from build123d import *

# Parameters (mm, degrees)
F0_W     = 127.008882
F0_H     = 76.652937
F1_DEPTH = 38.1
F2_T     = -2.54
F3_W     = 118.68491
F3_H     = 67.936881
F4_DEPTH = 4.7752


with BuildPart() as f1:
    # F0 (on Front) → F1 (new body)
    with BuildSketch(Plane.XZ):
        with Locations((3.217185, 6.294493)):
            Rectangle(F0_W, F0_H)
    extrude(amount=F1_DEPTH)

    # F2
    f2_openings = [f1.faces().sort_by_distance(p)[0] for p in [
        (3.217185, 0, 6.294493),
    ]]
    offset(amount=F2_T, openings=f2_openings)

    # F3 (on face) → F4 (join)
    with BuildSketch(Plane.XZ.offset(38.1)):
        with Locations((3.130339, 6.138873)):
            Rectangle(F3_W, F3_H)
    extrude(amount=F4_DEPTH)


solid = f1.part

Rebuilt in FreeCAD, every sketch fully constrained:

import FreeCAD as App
import Part
import Sketcher
Q = App.Units.Quantity


def faces_at(feature, points):
    """Names of the faces that lie closest to the given points."""
    faces = feature.Shape.Faces
    near = lambda p: min(range(len(faces)), key=lambda i: faces[i].distToShape(Part.Vertex(*p))[0])
    return sorted({f"Face{near(p) + 1}" for p in points})


def add_polygon(sketch, points):
    """Adds a closed chain of lines whose ends are joined by coincident constraints."""
    first, n = sketch.GeometryCount, len(points)
    for a, b in zip(points, points[1:] + points[:1]):
        sketch.addGeometry(Part.LineSegment(App.Vector(*a, 0), App.Vector(*b, 0)), False)
    for i in range(n):
        sketch.addConstraint(Sketcher.Constraint("Coincident", first + i, 2, first + (i + 1) % n, 1))

doc = App.newDocument("Part")
body = doc.addObject("PartDesign::Body", "Body")

sketch1 = doc.addObject("Sketcher::SketchObject", "Sketch")
body.addObject(sketch1)
sketch1.AttachmentSupport = (doc.XZ_Plane, [""])
sketch1.MapMode = "FlatFace"
add_polygon(sketch1, [(-60, 45), (-60, -32), (67, -32), (67, 45)])
sketch1.addConstraint(Sketcher.Constraint("Vertical", 0))
sketch1.addConstraint(Sketcher.Constraint("Horizontal", 1))
sketch1.addConstraint(Sketcher.Constraint("Vertical", 2))
sketch1.addConstraint(Sketcher.Constraint("Horizontal", 3))
sketch1.addConstraint(Sketcher.Constraint("DistanceX", 1, 1, 1, 2, 127.008882))
sketch1.addConstraint(Sketcher.Constraint("DistanceY", 0, 2, 0, 1, 76.652937))
sketch1.addConstraint(Sketcher.Constraint("DistanceY", -1, 1, 2, 2, 44.620961))
sketch1.addConstraint(Sketcher.Constraint("DistanceX", 0, 2, -1, 1, 60.287256))
pad1 = doc.addObject("PartDesign::Pad", "Pad")
body.addObject(pad1)
pad1.Profile = sketch1
pad1.Length = Q("1.5 in")
doc.recompute()

thickness = doc.addObject("PartDesign::Thickness", "Thickness")
body.addObject(thickness)
thickness.Base = (pad1, faces_at(pad1, [(3.217, 0, 6.294)]))
thickness.Value = Q("0.1 in")
thickness.Reversed = True
thickness.Join = "Arc"

sketch2 = doc.addObject("Sketcher::SketchObject", "Sketch001")
body.addObject(sketch2)
sketch2.AttachmentSupport = (doc.XZ_Plane, [""])
sketch2.MapMode = "FlatFace"
sketch2.AttachmentOffset = App.Placement(App.Vector(0, 0, 1.5 * 25.4), App.Rotation())
add_polygon(sketch2, [(-56, 40), (-56, -28), (62, -28), (62, 40)])
sketch2.addConstraint(Sketcher.Constraint("Vertical", 0))
sketch2.addConstraint(Sketcher.Constraint("Horizontal", 1))
sketch2.addConstraint(Sketcher.Constraint("Vertical", 2))
sketch2.addConstraint(Sketcher.Constraint("Horizontal", 3))
sketch2.addConstraint(Sketcher.Constraint("DistanceX", 1, 1, 1, 2, 118.68491))
sketch2.addConstraint(Sketcher.Constraint("DistanceY", 0, 2, 0, 1, 67.936881))
sketch2.addConstraint(Sketcher.Constraint("DistanceX", 0, 2, -1, 1, 56.212116))
sketch2.addConstraint(Sketcher.Constraint("DistanceY", 0, 2, -1, 1, 27.829567))
pad2 = doc.addObject("PartDesign::Pad", "Pad001")
body.addObject(pad2)
pad2.Profile = sketch2
pad2.Length = Q("0.188 in")

doc.recompute()
